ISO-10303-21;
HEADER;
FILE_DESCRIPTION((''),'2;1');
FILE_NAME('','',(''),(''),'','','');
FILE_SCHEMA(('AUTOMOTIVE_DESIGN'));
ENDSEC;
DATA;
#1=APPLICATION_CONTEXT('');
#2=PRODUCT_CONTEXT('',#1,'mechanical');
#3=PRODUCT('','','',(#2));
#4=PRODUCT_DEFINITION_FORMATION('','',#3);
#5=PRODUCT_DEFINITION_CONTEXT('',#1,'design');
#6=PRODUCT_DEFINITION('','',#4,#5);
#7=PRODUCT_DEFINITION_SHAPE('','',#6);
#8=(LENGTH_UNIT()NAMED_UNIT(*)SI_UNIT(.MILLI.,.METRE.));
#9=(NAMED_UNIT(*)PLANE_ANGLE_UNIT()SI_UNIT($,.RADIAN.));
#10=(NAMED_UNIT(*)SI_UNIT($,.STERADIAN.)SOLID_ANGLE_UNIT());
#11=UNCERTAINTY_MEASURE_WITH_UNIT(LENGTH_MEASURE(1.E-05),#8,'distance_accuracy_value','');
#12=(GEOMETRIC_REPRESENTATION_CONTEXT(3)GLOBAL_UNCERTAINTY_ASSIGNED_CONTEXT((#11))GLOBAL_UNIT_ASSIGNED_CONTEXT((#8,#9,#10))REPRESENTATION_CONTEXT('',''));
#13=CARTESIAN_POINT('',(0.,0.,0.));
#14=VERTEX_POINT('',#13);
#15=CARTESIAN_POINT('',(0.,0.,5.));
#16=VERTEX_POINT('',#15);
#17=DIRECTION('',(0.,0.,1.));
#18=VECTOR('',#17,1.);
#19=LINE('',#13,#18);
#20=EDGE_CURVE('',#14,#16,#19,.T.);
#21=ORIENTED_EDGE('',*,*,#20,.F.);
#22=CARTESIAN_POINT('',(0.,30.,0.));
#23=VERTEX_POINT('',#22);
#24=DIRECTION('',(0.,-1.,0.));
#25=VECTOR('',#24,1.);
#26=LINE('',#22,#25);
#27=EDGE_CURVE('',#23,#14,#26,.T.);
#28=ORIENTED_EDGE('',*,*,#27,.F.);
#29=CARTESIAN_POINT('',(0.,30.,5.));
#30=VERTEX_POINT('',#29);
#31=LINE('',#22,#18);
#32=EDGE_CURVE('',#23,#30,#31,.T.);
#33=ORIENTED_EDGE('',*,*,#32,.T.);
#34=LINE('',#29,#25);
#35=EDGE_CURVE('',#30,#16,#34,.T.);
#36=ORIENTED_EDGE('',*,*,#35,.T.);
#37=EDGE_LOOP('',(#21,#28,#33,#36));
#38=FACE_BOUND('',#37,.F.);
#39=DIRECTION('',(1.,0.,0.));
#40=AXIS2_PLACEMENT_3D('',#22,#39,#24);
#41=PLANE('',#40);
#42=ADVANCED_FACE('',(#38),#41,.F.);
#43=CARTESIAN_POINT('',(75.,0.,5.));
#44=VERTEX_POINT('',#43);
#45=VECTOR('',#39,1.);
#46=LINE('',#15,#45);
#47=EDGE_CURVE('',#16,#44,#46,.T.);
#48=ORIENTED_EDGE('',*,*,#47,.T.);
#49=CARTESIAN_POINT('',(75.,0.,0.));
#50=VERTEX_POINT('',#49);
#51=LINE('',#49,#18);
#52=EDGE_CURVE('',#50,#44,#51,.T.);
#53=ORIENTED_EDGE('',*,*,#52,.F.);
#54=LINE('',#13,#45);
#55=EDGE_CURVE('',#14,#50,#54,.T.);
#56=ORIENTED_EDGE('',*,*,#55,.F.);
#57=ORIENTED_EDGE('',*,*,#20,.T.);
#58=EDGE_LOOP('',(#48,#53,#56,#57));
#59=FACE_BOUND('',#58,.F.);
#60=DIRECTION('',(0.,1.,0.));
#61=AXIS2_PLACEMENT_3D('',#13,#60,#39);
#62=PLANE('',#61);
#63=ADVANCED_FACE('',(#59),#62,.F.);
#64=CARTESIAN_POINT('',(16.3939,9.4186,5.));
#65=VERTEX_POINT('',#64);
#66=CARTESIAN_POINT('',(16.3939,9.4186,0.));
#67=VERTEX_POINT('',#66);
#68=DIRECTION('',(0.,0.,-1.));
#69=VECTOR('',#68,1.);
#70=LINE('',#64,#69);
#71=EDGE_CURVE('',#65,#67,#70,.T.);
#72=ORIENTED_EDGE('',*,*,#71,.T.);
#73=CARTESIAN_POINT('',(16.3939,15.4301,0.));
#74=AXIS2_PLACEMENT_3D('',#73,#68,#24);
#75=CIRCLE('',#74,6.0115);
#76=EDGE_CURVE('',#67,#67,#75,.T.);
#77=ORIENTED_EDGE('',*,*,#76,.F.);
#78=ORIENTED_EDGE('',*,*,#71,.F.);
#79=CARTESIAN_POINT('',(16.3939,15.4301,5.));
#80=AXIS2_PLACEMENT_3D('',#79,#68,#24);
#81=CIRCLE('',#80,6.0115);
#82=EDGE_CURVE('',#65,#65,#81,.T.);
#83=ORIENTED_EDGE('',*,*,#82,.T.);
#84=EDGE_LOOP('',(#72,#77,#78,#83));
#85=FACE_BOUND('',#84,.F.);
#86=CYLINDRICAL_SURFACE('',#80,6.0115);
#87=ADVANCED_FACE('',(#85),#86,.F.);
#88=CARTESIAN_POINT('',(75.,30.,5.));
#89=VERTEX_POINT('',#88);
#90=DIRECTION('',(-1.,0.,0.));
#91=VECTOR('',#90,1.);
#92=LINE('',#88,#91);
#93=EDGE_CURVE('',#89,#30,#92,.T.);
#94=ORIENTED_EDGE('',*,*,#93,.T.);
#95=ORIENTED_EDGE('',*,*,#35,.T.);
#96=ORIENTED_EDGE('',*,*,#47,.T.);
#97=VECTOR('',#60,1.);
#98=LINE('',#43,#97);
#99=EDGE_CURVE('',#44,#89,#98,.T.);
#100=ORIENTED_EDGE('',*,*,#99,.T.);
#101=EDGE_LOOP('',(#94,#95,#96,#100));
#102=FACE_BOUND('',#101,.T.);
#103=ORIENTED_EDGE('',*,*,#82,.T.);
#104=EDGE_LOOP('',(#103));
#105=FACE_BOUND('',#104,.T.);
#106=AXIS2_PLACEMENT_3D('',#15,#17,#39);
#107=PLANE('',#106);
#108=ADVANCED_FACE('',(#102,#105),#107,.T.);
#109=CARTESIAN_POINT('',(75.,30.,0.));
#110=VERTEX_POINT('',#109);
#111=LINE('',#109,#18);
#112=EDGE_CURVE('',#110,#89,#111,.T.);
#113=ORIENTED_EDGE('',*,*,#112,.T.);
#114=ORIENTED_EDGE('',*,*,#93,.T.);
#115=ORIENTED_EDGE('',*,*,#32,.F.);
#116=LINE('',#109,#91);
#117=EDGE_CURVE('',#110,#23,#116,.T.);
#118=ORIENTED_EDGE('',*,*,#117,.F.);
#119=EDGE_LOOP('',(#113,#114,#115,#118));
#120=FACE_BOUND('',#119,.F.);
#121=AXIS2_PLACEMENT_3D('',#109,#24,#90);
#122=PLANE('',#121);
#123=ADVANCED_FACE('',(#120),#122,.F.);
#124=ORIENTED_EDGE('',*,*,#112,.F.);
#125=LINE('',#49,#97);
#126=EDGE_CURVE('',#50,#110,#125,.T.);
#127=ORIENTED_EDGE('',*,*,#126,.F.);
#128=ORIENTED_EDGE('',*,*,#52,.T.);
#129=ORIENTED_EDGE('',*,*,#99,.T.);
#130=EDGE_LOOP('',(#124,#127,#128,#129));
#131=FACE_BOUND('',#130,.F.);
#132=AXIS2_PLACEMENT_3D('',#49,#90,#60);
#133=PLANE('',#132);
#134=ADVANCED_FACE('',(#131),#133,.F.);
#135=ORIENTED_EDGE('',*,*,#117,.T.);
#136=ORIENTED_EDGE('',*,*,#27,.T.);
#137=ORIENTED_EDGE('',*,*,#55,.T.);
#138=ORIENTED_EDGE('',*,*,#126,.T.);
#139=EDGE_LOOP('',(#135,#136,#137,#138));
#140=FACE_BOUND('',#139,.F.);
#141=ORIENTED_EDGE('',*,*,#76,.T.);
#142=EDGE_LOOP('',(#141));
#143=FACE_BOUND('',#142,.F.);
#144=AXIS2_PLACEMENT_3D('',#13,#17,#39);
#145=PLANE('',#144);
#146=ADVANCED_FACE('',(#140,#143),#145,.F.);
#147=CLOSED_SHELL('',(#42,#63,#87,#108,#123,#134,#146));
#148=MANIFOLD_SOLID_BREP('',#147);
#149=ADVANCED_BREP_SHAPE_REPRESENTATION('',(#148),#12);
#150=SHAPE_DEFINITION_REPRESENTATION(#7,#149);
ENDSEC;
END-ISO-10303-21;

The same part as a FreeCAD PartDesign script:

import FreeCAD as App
import Part
import Sketcher
Q = App.Units.Quantity

doc = App.newDocument("Part")
body = doc.addObject("PartDesign::Body", "Body")

# Sketch on XY plane
sketch1 = body.newObject("Sketcher::SketchObject", "Sketch")
sketch1.AttachmentSupport = (doc.getObject("XY_Plane"), [""])
sketch1.MapMode = "FlatFace"
sketch1.addGeometry(Part.LineSegment(App.Vector(0, 30, 0), App.Vector(0, 0, 0)), False)
sketch1.addGeometry(Part.LineSegment(App.Vector(0, 0, 0), App.Vector(75, 0, 0)), False)
sketch1.addGeometry(Part.LineSegment(App.Vector(75, 0, 0), App.Vector(75, 30, 0)), False)
sketch1.addGeometry(Part.LineSegment(App.Vector(75, 30, 0), App.Vector(0, 30, 0)), False)
sketch1.addConstraint(Sketcher.Constraint("Coincident", 0, 2, 1, 1))
sketch1.addConstraint(Sketcher.Constraint("Coincident", 1, 2, 2, 1))
sketch1.addConstraint(Sketcher.Constraint("Coincident", 2, 2, 3, 1))
sketch1.addConstraint(Sketcher.Constraint("Coincident", 3, 2, 0, 1))
sketch1.addConstraint(Sketcher.Constraint("Vertical", 0))
sketch1.addConstraint(Sketcher.Constraint("Horizontal", 1))
sketch1.addConstraint(Sketcher.Constraint("Vertical", 2))
sketch1.addConstraint(Sketcher.Constraint("Horizontal", 3))
sketch1.addConstraint(Sketcher.Constraint("Coincident", 0, 2, -1, 1))
sketch1.addConstraint(Sketcher.Constraint("DistanceX", 1, 1, 1, 2, Q("75 mm")))
sketch1.addConstraint(Sketcher.Constraint("DistanceY", 0, 2, 0, 1, Q("30 mm")))
pad1 = body.newObject("PartDesign::Pad", "Pad")
pad1.Profile = sketch1
pad1.Length = 5

# Sketch on XY plane
sketch2 = body.newObject("Sketcher::SketchObject", "Sketch001")
sketch2.AttachmentSupport = (doc.getObject("XY_Plane"), [""])
sketch2.MapMode = "FlatFace"
sketch2.AttachmentOffset = App.Placement(App.Vector(0, 0, 5), App.Rotation())
sketch2.addGeometry(Part.Circle(App.Vector(16, 15, 0), App.Vector(0, 0, 1), 6), False)
sketch2.addConstraint(Sketcher.Constraint("Diameter", 0, Q("12.023 mm")))
sketch2.addConstraint(Sketcher.Constraint("DistanceY", -1, 1, 0, 3, Q("15.43 mm")))
sketch2.addConstraint(Sketcher.Constraint("DistanceX", -1, 1, 0, 3, Q("16.394 mm")))
doc.recompute()
hole = body.newObject("PartDesign::Hole", "Hole")
hole.Profile = sketch2
hole.ThreadType = "None"
hole.Diameter = 12.023
hole.DepthType = "Dimension"
hole.Depth = 10
hole.DrillPoint = "Flat"

doc.recompute()
